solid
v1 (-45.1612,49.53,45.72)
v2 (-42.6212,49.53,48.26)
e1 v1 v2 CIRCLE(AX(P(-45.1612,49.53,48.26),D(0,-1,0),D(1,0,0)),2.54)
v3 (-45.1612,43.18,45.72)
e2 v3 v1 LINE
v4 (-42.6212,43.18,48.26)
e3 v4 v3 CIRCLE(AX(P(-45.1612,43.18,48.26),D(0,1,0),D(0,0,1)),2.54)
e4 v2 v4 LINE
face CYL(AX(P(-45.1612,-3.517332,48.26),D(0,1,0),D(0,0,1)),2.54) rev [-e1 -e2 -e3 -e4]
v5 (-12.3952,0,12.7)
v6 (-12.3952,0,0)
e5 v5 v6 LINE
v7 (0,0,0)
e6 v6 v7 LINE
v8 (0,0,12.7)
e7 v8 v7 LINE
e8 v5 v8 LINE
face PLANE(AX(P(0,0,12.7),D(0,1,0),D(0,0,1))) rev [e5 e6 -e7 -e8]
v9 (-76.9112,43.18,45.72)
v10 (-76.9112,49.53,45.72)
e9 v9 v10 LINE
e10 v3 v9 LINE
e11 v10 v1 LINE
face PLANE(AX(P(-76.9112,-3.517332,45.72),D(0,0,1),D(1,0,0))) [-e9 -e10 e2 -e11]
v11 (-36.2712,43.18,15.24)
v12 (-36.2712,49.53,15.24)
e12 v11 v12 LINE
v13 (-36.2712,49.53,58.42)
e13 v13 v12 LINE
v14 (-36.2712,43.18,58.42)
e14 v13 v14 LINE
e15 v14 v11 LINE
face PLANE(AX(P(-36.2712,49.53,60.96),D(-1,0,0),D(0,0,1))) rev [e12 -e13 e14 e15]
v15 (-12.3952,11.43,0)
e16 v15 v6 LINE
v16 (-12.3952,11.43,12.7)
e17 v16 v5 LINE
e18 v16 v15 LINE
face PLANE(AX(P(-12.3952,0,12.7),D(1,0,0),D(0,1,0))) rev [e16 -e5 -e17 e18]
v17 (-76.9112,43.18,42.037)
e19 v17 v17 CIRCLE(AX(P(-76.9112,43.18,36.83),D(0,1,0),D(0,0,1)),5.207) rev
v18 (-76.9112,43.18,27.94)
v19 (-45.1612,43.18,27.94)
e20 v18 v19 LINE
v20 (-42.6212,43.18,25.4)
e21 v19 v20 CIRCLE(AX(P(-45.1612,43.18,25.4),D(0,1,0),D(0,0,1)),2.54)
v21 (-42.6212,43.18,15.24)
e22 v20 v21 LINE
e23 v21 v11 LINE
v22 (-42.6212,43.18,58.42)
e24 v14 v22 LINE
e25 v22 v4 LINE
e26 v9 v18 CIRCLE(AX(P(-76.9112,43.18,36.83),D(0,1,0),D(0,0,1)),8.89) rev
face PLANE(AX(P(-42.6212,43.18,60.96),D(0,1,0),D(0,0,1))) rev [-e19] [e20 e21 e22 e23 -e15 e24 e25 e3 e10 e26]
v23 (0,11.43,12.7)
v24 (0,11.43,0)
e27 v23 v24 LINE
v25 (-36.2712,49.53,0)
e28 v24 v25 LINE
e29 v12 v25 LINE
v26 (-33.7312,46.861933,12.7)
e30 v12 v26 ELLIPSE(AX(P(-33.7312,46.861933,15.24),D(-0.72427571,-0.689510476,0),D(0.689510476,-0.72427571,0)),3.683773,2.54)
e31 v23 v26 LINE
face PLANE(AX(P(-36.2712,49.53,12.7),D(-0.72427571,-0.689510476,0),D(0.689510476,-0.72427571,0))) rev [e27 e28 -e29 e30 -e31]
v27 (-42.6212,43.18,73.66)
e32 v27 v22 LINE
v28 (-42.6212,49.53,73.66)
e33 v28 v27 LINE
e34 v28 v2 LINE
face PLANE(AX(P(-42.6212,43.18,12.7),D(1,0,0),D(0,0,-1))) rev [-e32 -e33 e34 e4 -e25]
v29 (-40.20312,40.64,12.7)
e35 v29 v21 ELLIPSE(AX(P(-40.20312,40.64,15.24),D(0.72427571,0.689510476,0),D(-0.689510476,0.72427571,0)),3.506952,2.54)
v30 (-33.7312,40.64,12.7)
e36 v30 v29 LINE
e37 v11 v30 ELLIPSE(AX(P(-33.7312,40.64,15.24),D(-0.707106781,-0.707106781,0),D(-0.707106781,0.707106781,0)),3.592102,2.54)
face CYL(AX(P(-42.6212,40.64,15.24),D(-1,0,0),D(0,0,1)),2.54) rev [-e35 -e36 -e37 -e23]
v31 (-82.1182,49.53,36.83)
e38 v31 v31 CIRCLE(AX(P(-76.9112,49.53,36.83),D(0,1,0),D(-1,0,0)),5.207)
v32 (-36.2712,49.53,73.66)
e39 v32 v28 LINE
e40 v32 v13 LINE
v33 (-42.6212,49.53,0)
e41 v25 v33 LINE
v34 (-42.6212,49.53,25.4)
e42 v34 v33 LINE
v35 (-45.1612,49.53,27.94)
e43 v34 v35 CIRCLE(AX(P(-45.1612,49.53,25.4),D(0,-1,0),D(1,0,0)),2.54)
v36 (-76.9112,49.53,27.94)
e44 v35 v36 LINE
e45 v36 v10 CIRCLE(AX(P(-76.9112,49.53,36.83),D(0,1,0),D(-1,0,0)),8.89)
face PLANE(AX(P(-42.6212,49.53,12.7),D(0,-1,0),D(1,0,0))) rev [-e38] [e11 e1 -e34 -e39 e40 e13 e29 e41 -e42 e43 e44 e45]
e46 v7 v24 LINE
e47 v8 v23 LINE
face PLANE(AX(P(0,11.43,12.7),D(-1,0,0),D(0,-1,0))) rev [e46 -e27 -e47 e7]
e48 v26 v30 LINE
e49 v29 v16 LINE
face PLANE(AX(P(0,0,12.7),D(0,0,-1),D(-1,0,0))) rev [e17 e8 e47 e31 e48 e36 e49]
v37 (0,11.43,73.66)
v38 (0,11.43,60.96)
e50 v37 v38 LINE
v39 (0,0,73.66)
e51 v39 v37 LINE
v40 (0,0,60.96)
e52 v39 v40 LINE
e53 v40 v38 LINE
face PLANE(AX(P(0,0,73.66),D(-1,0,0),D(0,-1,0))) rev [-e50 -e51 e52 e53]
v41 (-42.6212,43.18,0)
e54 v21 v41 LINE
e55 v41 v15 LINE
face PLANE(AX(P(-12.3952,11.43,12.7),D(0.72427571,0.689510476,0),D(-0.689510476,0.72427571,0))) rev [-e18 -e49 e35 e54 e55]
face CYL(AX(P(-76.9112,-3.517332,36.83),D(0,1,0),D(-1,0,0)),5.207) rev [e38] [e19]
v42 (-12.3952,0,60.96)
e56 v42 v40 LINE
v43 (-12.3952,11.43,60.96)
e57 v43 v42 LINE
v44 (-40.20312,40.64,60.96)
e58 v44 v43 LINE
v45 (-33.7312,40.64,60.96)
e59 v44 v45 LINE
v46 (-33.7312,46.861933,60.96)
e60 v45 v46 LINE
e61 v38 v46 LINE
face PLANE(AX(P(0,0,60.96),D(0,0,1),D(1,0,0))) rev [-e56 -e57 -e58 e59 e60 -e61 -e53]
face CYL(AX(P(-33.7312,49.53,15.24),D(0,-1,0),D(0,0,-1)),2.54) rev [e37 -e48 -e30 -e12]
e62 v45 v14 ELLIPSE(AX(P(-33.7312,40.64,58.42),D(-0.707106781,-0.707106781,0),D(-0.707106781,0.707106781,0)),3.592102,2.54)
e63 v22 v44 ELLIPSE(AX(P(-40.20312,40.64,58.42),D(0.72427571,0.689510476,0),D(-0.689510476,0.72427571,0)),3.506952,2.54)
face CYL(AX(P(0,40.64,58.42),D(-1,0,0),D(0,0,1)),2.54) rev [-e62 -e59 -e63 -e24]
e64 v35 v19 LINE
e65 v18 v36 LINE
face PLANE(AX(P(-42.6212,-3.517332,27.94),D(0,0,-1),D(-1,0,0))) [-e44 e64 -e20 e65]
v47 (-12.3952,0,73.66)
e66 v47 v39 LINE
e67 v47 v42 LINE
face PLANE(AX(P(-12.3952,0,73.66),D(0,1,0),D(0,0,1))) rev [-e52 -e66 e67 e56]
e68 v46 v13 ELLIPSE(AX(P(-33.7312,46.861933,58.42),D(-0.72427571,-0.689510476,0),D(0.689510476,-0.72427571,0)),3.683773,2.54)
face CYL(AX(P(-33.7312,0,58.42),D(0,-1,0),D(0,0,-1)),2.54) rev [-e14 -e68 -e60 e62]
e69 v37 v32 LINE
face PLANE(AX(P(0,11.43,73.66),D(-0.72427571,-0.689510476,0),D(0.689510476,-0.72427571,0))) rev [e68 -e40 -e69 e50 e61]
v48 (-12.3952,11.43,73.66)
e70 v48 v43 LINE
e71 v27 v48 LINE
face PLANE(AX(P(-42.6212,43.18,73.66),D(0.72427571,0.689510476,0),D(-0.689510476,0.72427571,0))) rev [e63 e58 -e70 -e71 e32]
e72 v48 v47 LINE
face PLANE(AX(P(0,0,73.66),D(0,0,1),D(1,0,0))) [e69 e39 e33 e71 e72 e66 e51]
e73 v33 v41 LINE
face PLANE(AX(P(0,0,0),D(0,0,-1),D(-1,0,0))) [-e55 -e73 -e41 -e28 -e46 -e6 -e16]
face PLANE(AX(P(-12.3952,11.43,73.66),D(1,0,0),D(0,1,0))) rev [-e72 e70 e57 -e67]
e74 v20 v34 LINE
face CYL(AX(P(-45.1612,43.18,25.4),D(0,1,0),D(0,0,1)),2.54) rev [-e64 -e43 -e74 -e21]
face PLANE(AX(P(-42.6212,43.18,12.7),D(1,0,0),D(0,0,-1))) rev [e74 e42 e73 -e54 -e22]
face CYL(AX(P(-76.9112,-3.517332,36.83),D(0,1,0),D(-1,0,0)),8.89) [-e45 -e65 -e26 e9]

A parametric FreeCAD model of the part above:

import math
import FreeCAD as App
import Part
import Sketcher
from FreeCAD import Vector
Q = App.Units.Quantity


def edges_at(feature, points):
    """Names of the edges that pass closest to the given points."""
    edges = feature.Shape.Edges
    near = lambda p: min(range(len(edges)), key=lambda i: edges[i].distToShape(Part.Vertex(*p))[0])
    return sorted({f"Edge{near(p) + 1}" for p in points})

doc = App.newDocument("Part")
params = doc.addObject("Spreadsheet::Sheet", "Params")
for row, (alias, value) in enumerate([
    ("sketch1_width", "0.25 in"),
    ("sketch1_height", "0.45 in"),
    ("sketch1_width2", "0.488 in"),
    ("pad1_length", "0.5 in"),
    ("sketch2_width", "0.25 in"),
    ("pad2_length", "1.9 in"),
    ("sketch3_width", "0.25 in"),
    ("sketch3_height", "0.45 in"),
    ("sketch3_width2", "0.488 in"),
    ("pad3_length", "0.5 in"),
    ("sketch4_diameter", "0.41 in"),
    ("sketch4_radius", "0.35 in"),
    ("sketch4_width", "1.35 in"),
    ("pad4_length", "0.25 in"),
    ("fillet_radius", "0.1 in"),
], start=1):
    params.set(f"A{row}", alias)
    params.set(f"B{row}", "=" + value)
    params.setAlias(f"B{row}", alias)

body = doc.addObject("PartDesign::Body", "Body")

# Sketch on XY plane
sketch1 = body.newObject("Sketcher::SketchObject", "Sketch")
sketch1.AttachmentSupport = (doc.getObject("XY_Plane"), [""])
sketch1.MapMode = "FlatFace"
sketch1.addGeometry(Part.LineSegment(Vector(-12.3952, 0, 0), Vector(0, 0, 0)), False)
sketch1.addGeometry(Part.LineSegment(Vector(0, 0, 0), Vector(0, 11.43, 0)), False)
sketch1.addGeometry(Part.LineSegment(Vector(0, 11.43, 0), Vector(-36.2712, 49.53, 0)), False)
sketch1.addGeometry(Part.LineSegment(Vector(-36.2712, 49.53, 0), Vector(-42.6212, 49.53, 0)), False)
sketch1.addGeometry(Part.LineSegment(Vector(-42.6212, 49.53, 0), Vector(-42.6212, 43.18, 0)), False)
sketch1.addGeometry(Part.LineSegment(Vector(-42.6212, 43.18, 0), Vector(-12.3952, 11.43, 0)), False)
sketch1.addGeometry(Part.LineSegment(Vector(-12.3952, 11.43, 0), Vector(-12.3952, 0, 0)), False)
sketch1.addConstraint(Sketcher.Constraint("Coincident", 0, 2, 1, 1))
sketch1.addConstraint(Sketcher.Constraint("Coincident", 1, 2, 2, 1))
sketch1.addConstraint(Sketcher.Constraint("Coincident", 2, 2, 3, 1))
sketch1.addConstraint(Sketcher.Constraint("Coincident", 3, 2, 4, 1))
sketch1.addConstraint(Sketcher.Constraint("Coincident", 4, 2, 5, 1))
sketch1.addConstraint(Sketcher.Constraint("Coincident", 5, 2, 6, 1))
sketch1.addConstraint(Sketcher.Constraint("Coincident", 6, 2, 0, 1))
sketch1.addConstraint(Sketcher.Constraint("Horizontal", 0))
sketch1.addConstraint(Sketcher.Constraint("Vertical", 1))
sketch1.addConstraint(Sketcher.Constraint("Horizontal", 3))
sketch1.addConstraint(Sketcher.Constraint("Vertical", 4))
sketch1.addConstraint(Sketcher.Constraint("Vertical", 6))
sketch1.addConstraint(Sketcher.Constraint("Coincident", 0, 2, -1, 1))
sketch1.addConstraint(Sketcher.Constraint("Parallel", 2, 5))
sketch1.addConstraint(Sketcher.Constraint("Horizontal", 1, 2, 5, 2))
sketch1.addConstraint(Sketcher.Constraint("Equal", 3, 4))
sketch1.addConstraint(Sketcher.Constraint("DistanceX", 3, 2, 3, 1, Q("0.25 in")))
sketch1.addConstraint(Sketcher.Constraint("DistanceY", 1, 1, 1, 2, Q("0.45 in")))
sketch1.addConstraint(Sketcher.Constraint("DistanceY", -1, 1, 4, 2, Q("1.7 in")))
sketch1.addConstraint(Sketcher.Constraint("DistanceX", 0, 1, 0, 2, Q("0.488 in")))
sketch1.setExpression("Constraints[16]", "Params.sketch1_width")
sketch1.setExpression("Constraints[17]", "Params.sketch1_height")
sketch1.setExpression("Constraints[19]", "Params.sketch1_width2")
pad1 = body.newObject("PartDesign::Pad", "Pad")
pad1.Profile = sketch1
pad1.setExpression("Length", "Params.pad1_length")

# Sketch on XY plane
sketch2 = body.newObject("Sketcher::SketchObject", "Sketch001")
sketch2.AttachmentSupport = (doc.getObject("XY_Plane"), [""])
sketch2.MapMode = "FlatFace"
sketch2.AttachmentOffset = App.Placement(Vector(0, 0, 0.5 * 25.4), App.Rotation())
sketch2.addGeometry(Part.LineSegment(Vector(-42.6212, 49.53, 0), Vector(-42.6212, 43.18, 0)), False)
sketch2.addGeometry(Part.LineSegment(Vector(-42.6212, 43.18, 0), Vector(-36.2712, 43.18, 0)), False)
sketch2.addGeometry(Part.LineSegment(Vector(-36.2712, 43.18, 0), Vector(-36.2712, 49.53, 0)), False)
sketch2.addGeometry(Part.LineSegment(Vector(-36.2712, 49.53, 0), Vector(-42.6212, 49.53, 0)), False)
sketch2.addConstraint(Sketcher.Constraint("Coincident", 0, 2, 1, 1))
sketch2.addConstraint(Sketcher.Constraint("Coincident", 1, 2, 2, 1))
sketch2.addConstraint(Sketcher.Constraint("Coincident", 2, 2, 3, 1))
sketch2.addConstraint(Sketcher.Constraint("Coincident", 3, 2, 0, 1))
sketch2.addConstraint(Sketcher.Constraint("Vertical", 0))
sketch2.addConstraint(Sketcher.Constraint("Horizontal", 1))
sketch2.addConstraint(Sketcher.Constraint("Vertical", 2))
sketch2.addConstraint(Sketcher.Constraint("Horizontal", 3))
sketch2.addConstraint(Sketcher.Constraint("Equal", 3, 0))
sketch2.addConstraint(Sketcher.Constraint("DistanceX", 1, 1, 1, 2, Q("0.25 in")))
sketch2.addConstraint(Sketcher.Constraint("DistanceY", -1, 1, 0, 2, Q("1.7 in")))
sketch2.addConstraint(Sketcher.Constraint("DistanceX", 0, 2, -1, 1, Q("1.678 in")))
sketch2.setExpression("Constraints[9]", "Params.sketch2_width")
pad2 = body.newObject("PartDesign::Pad", "Pad001")
pad2.Profile = sketch2
pad2.setExpression("Length", "Params.pad2_length")

# Sketch on XY plane
sketch3 = body.newObject("Sketcher::SketchObject", "Sketch002")
sketch3.AttachmentSupport = (doc.getObject("XY_Plane"), [""])
sketch3.MapMode = "FlatFace"
sketch3.AttachmentOffset = App.Placement(Vector(0, 0, 2.4 * 25.4), App.Rotation())
sketch3.addGeometry(Part.LineSegment(Vector(-42.6212, 43.18, 0), Vector(-12.3952, 11.43, 0)), False)
sketch3.addGeometry(Part.LineSegment(Vector(-12.3952, 11.43, 0), Vector(-12.3952, 0, 0)), False)
sketch3.addGeometry(Part.LineSegment(Vector(-12.3952, 0, 0), Vector(0, 0, 0)), False)
sketch3.addGeometry(Part.LineSegment(Vector(0, 0, 0), Vector(0, 11.43, 0)), False)
sketch3.addGeometry(Part.LineSegment(Vector(0, 11.43, 0), Vector(-36.2712, 49.53, 0)), False)
sketch3.addGeometry(Part.LineSegment(Vector(-36.2712, 49.53, 0), Vector(-42.6212, 49.53, 0)), False)
sketch3.addGeometry(Part.LineSegment(Vector(-42.6212, 49.53, 0), Vector(-42.6212, 43.18, 0)), False)
sketch3.addConstraint(Sketcher.Constraint("Coincident", 0, 2, 1, 1))
sketch3.addConstraint(Sketcher.Constraint("Coincident", 1, 2, 2, 1))
sketch3.addConstraint(Sketcher.Constraint("Coincident", 2, 2, 3, 1))
sketch3.addConstraint(Sketcher.Constraint("Coincident", 3, 2, 4, 1))
sketch3.addConstraint(Sketcher.Constraint("Coincident", 4, 2, 5, 1))
sketch3.addConstraint(Sketcher.Constraint("Coincident", 5, 2, 6, 1))
sketch3.addConstraint(Sketcher.Constraint("Coincident", 6, 2, 0, 1))
sketch3.addConstraint(Sketcher.Constraint("Vertical", 1))
sketch3.addConstraint(Sketcher.Constraint("Horizontal", 2))
sketch3.addConstraint(Sketcher.Constraint("Vertical", 3))
sketch3.addConstraint(Sketcher.Constraint("Horizontal", 5))
sketch3.addConstraint(Sketcher.Constraint("Vertical", 6))
sketch3.addConstraint(Sketcher.Constraint("Coincident", 2, 2, -1, 1))
sketch3.addConstraint(Sketcher.Constraint("Parallel", 0, 4))
sketch3.addConstraint(Sketcher.Constraint("Horizontal", 0, 2, 3, 2))
sketch3.addConstraint(Sketcher.Constraint("Equal", 5, 6))
sketch3.addConstraint(Sketcher.Constraint("DistanceX", 5, 2, 5, 1, Q("0.25 in")))
sketch3.addConstraint(Sketcher.Constraint("DistanceY", 1, 2, 1, 1, Q("0.45 in")))
sketch3.addConstraint(Sketcher.Constraint("DistanceY", -1, 1, 6, 2, Q("1.7 in")))
sketch3.addConstraint(Sketcher.Constraint("DistanceX", 2, 1, 2, 2, Q("0.488 in")))
sketch3.setExpression("Constraints[16]", "Params.sketch3_width")
sketch3.setExpression("Constraints[17]", "Params.sketch3_height")
sketch3.setExpression("Constraints[19]", "Params.sketch3_width2")
pad3 = body.newObject("PartDesign::Pad", "Pad002")
pad3.Profile = sketch3
pad3.setExpression("Length", "Params.pad3_length")

# Sketch on XZ plane
sketch4 = body.newObject("Sketcher::SketchObject", "Sketch003")
sketch4.AttachmentSupport = (doc.getObject("XZ_Plane"), [""])
sketch4.MapMode = "FlatFace"
sketch4.AttachmentOffset = App.Placement(Vector(0, 0, -1.95 * 25.4), App.Rotation())
sketch4.addGeometry(Part.LineSegment(Vector(-42.6212, 27.94, 0), Vector(-76.9112, 27.94, 0)), False)
sketch4.addGeometry(Part.ArcOfCircle(Part.Circle(Vector(-76.9112, 36.83, 0), Vector(0, 0, 1), 8.89), math.radians(90), math.radians(270)), False)
sketch4.addGeometry(Part.LineSegment(Vector(-76.9112, 45.72, 0), Vector(-42.6212, 45.72, 0)), False)
sketch4.addGeometry(Part.LineSegment(Vector(-42.6212, 45.72, 0), Vector(-42.6212, 27.94, 0)), False)
sketch4.addGeometry(Part.Circle(Vector(-76.9112, 36.83, 0), Vector(0, 0, 1), 5.207), False)
sketch4.addConstraint(Sketcher.Constraint("Tangent", 0, 2, 1, 2))
sketch4.addConstraint(Sketcher.Constraint("Tangent", 1, 1, 2, 1))
sketch4.addConstraint(Sketcher.Constraint("Coincident", 2, 2, 3, 1))
sketch4.addConstraint(Sketcher.Constraint("Coincident", 3, 2, 0, 1))
sketch4.addConstraint(Sketcher.Constraint("Horizontal", 0))
sketch4.addConstraint(Sketcher.Constraint("Horizontal", 2))
sketch4.addConstraint(Sketcher.Constraint("Vertical", 3))
sketch4.addConstraint(Sketcher.Constraint("Coincident", 4, 3, 1, 3))
sketch4.addConstraint(Sketcher.Constraint("Diameter", 4, Q("0.41 in")))
sketch4.addConstraint(Sketcher.Constraint("Radius", 1, Q("0.35 in")))
sketch4.addConstraint(Sketcher.Constraint("DistanceX", 0, 2, 0, 1, Q("1.35 in")))
sketch4.addConstraint(Sketcher.Constraint("DistanceY", -1, 1, 0, 2, Q("1.1 in")))
sketch4.addConstraint(Sketcher.Constraint("DistanceX", 1, 3, -1, 1, Q("3.028 in")))
sketch4.setExpression("Constraints[8]", "Params.sketch4_diameter")
sketch4.setExpression("Constraints[9]", "Params.sketch4_radius")
sketch4.setExpression("Constraints[10]", "Params.sketch4_width")
pad4 = body.newObject("PartDesign::Pad", "Pad003")
pad4.Profile = sketch4
pad4.setExpression("Length", "Params.pad4_length")
doc.recompute()

fillet = body.newObject("PartDesign::Fillet", "Fillet")
fillet.Base = (pad4, edges_at(pad4, [
    (-39.446, 43.18, 12.7),
    (-36.271, 46.355, 12.7),
    (-39.446, 43.18, 60.96),
    (-36.271, 46.355, 60.96),
    (-42.621, 46.355, 45.72),
    (-42.621, 46.355, 27.94),
]))
fillet.setExpression("Radius", "Params.fillet_radius")

doc.recompute()
